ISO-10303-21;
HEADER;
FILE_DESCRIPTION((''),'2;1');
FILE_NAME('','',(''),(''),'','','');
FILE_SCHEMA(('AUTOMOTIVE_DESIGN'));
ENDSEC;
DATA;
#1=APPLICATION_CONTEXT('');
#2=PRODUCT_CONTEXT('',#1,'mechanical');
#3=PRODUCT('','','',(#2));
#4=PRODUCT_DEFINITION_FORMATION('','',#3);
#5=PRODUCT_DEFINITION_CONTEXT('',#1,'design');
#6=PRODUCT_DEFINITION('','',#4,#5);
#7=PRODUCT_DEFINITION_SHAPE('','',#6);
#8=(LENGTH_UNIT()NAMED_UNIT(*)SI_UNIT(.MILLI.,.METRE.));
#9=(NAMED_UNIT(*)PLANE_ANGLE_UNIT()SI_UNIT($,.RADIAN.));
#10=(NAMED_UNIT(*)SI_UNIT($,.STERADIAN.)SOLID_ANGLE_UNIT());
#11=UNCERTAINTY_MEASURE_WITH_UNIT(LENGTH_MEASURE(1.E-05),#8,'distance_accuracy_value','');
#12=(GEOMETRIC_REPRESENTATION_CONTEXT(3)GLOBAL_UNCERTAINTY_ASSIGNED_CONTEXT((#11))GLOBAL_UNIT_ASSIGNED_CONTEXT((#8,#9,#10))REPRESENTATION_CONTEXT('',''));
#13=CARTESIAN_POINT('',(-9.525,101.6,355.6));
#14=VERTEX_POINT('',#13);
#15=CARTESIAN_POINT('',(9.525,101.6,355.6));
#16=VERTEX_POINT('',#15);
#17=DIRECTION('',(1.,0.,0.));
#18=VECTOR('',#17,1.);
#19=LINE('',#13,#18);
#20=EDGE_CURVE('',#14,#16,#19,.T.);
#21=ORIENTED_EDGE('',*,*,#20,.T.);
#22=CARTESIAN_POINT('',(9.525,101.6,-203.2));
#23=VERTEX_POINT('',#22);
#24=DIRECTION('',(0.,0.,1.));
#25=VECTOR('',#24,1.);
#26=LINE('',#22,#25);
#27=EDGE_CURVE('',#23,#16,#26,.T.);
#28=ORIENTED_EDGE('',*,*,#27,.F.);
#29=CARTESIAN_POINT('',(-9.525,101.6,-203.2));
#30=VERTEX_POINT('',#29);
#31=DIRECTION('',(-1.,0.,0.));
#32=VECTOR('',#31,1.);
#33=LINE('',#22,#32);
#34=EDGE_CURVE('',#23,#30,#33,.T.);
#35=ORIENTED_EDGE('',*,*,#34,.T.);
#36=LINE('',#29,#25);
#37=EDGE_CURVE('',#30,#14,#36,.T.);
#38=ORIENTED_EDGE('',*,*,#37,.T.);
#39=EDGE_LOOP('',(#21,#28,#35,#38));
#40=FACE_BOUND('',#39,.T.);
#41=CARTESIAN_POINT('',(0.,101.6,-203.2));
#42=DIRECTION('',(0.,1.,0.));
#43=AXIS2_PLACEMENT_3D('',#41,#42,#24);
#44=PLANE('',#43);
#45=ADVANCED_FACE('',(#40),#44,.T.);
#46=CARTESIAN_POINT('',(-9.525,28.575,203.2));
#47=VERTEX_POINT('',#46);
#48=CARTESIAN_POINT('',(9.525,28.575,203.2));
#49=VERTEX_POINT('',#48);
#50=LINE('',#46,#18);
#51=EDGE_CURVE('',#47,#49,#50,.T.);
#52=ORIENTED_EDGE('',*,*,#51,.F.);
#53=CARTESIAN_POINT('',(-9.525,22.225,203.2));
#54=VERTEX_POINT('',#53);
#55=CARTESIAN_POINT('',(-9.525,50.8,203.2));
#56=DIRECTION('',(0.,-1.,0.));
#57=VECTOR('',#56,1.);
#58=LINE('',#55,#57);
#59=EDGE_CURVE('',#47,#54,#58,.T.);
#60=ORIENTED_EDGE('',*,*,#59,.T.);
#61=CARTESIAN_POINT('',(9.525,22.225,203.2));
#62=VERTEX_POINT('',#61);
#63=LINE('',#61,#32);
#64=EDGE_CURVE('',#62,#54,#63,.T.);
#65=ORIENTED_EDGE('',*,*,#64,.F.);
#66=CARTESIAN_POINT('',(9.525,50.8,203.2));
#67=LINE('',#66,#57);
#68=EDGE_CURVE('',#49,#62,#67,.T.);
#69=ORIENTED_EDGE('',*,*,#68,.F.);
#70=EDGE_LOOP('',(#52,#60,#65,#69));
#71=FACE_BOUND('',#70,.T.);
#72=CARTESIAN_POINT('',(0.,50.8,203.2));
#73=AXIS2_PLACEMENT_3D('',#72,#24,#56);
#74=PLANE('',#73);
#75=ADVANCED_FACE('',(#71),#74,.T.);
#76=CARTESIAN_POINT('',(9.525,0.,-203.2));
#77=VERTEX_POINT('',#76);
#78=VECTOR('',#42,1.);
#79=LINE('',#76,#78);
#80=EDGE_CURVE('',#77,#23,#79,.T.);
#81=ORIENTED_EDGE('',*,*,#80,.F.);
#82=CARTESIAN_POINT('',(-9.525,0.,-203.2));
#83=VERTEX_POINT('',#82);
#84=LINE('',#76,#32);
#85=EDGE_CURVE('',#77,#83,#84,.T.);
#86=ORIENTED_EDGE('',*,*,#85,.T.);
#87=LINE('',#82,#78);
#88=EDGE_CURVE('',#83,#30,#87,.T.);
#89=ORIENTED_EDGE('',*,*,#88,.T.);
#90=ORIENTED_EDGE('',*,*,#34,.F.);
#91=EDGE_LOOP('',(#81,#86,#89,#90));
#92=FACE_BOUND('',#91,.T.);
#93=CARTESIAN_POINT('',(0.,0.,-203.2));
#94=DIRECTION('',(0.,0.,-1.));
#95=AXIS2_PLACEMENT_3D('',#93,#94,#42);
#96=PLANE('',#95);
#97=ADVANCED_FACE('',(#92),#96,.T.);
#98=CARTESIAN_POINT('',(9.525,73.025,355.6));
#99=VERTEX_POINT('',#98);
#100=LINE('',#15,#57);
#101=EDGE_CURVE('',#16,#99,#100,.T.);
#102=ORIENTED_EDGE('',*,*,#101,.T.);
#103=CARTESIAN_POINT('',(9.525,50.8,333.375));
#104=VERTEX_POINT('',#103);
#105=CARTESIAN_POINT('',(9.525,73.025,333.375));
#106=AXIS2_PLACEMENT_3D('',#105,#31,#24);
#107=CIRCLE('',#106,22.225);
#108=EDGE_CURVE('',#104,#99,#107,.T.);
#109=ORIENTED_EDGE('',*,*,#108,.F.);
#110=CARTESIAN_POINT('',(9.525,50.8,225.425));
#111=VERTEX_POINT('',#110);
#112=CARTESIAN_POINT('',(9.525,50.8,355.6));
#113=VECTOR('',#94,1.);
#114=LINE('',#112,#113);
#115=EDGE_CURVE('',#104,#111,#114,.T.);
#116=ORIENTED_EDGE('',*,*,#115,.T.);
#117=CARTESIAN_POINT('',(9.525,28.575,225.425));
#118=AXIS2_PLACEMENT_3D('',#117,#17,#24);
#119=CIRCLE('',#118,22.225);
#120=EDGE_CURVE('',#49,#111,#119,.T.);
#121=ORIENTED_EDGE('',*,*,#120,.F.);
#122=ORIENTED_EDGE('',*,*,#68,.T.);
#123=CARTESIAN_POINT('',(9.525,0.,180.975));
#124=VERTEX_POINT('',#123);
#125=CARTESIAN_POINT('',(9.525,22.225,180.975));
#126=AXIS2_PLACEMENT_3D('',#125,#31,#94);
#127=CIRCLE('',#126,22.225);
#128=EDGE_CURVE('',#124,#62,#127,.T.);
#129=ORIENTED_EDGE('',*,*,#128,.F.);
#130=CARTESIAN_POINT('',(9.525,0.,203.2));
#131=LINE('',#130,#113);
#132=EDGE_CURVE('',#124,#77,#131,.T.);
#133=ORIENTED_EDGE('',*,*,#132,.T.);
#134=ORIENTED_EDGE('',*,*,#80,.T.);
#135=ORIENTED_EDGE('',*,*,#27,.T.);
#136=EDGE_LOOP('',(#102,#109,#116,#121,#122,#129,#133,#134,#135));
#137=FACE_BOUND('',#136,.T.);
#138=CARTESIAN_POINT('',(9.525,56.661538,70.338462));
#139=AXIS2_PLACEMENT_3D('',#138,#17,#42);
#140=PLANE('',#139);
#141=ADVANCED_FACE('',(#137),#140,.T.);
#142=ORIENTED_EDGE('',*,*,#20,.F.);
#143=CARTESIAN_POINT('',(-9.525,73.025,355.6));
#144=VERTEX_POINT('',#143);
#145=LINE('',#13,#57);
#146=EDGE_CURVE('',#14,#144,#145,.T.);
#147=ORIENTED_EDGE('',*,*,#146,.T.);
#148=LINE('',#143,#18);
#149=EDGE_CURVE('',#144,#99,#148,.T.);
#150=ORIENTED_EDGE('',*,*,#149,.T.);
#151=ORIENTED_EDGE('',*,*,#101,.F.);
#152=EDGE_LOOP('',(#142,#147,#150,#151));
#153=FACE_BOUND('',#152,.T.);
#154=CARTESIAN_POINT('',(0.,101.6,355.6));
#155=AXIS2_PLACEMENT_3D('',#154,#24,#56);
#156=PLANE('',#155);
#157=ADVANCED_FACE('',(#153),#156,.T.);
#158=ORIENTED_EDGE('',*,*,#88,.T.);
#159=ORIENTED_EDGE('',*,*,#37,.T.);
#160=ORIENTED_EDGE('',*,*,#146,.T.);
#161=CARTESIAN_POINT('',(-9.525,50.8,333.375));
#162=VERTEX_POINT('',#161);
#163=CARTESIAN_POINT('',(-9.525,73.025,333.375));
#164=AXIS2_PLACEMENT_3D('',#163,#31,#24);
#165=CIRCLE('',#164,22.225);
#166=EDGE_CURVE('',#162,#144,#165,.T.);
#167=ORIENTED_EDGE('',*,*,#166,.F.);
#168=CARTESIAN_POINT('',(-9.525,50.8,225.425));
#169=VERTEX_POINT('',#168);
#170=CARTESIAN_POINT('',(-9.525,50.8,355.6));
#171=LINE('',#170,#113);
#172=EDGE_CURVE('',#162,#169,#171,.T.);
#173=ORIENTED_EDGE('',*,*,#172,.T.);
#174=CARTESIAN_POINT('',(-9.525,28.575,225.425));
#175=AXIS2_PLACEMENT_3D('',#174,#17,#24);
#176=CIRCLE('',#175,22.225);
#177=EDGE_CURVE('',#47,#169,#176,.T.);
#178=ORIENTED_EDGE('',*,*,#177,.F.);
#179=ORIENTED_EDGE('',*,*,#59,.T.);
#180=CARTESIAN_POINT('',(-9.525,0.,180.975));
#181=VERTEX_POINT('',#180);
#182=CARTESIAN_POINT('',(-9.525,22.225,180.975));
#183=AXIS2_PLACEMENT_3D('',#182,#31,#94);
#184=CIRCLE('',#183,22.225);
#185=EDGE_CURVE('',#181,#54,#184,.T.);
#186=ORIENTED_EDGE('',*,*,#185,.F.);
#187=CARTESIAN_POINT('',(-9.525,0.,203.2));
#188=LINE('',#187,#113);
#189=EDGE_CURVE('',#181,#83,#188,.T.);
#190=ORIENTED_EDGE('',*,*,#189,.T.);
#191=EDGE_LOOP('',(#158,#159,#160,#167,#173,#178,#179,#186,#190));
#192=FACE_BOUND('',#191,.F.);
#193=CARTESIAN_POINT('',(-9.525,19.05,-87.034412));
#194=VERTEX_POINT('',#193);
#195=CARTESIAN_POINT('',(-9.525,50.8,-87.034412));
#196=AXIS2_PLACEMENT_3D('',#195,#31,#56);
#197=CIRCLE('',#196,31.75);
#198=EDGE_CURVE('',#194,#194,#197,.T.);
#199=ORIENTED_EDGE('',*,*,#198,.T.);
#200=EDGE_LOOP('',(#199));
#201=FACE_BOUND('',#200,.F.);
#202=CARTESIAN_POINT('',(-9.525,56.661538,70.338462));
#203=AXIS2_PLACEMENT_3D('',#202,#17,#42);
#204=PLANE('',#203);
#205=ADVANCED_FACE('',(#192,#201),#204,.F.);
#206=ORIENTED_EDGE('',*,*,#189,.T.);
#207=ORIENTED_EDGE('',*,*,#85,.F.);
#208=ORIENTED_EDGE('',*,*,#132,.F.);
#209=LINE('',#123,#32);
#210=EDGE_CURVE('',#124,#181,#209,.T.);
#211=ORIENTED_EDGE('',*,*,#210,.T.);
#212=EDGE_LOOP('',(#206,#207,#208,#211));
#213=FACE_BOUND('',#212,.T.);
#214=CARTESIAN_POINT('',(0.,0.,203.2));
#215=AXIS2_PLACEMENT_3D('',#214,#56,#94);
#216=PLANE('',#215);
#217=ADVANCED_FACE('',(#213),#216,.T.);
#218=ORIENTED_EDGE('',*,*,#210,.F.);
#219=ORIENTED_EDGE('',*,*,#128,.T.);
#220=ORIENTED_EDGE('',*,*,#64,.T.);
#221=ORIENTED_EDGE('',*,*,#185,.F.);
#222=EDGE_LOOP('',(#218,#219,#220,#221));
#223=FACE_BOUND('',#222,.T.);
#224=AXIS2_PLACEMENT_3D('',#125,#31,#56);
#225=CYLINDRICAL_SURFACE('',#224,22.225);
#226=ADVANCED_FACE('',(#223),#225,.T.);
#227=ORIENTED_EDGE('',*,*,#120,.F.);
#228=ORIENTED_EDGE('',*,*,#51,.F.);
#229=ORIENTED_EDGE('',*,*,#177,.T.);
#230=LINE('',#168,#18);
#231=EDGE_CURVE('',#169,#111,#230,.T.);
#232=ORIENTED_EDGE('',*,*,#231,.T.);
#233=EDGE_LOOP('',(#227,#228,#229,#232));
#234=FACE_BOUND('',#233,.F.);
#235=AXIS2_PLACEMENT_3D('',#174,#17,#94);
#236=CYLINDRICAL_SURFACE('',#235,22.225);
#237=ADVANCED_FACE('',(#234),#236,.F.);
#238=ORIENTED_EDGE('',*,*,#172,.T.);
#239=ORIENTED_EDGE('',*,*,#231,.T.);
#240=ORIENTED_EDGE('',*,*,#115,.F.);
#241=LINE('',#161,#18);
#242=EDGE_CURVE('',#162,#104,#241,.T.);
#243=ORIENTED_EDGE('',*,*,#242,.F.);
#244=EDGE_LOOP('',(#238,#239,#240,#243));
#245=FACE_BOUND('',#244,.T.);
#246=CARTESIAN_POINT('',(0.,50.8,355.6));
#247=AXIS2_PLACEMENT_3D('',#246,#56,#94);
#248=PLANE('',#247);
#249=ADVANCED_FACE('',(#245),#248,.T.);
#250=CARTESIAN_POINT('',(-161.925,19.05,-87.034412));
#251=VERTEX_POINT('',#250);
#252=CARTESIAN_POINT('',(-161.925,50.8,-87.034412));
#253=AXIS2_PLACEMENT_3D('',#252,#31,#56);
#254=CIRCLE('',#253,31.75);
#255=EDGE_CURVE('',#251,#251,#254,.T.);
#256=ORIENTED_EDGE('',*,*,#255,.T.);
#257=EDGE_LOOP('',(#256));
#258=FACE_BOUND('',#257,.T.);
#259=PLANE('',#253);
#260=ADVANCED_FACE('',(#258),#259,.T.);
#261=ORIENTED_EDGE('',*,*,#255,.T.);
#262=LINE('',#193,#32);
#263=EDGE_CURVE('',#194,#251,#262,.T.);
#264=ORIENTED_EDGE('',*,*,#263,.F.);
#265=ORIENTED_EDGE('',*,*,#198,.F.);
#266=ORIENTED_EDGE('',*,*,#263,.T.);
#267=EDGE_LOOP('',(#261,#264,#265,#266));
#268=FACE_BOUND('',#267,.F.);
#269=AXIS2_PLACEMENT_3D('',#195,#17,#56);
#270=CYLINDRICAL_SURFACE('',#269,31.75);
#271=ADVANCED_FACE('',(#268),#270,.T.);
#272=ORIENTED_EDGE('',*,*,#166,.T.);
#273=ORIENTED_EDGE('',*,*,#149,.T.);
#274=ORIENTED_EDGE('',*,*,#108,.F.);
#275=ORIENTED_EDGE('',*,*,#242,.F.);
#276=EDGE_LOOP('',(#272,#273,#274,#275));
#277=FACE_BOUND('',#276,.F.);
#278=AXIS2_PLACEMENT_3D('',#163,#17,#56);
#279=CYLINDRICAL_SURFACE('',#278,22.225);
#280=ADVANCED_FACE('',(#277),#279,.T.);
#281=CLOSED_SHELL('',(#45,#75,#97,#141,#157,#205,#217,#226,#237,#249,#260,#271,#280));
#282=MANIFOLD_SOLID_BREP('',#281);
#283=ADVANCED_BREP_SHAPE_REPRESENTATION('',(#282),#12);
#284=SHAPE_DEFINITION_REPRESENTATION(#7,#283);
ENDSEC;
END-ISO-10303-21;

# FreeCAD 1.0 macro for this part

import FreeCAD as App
import Part
import Sketcher
from FreeCAD import Vector
Q = App.Units.Quantity


def edges_at(feature, points):
    """Names of the edges that pass closest to the given points."""
    edges = feature.Shape.Edges
    near = lambda p: min(range(len(edges)), key=lambda i: edges[i].distToShape(Part.Vertex(*p))[0])
    return sorted({f"Edge{near(p) + 1}" for p in points})

doc = App.newDocument("Part")
params = doc.addObject("Spreadsheet::Sheet", "Params")
for row, (alias, value) in enumerate([
    ("sketch1_width", "2 in"),
    ("sketch1_height", "22 in"),
    ("sketch1_height2", "6 in"),
    ("pad1_length", "0.75 in"),
    ("fillet_radius", "0.875 in"),
    ("sketch2_diameter", "2.5 in"),
    ("pad2_length", "6 in"),
], start=1):
    params.set(f"A{row}", alias)
    params.set(f"B{row}", "=" + value)
    params.setAlias(f"B{row}", alias)

body = doc.addObject("PartDesign::Body", "Body")

# Sketch on YZ plane
sketch1 = body.newObject("Sketcher::SketchObject", "Sketch")
sketch1.AttachmentSupport = (doc.getObject("YZ_Plane"), [""])
sketch1.MapMode = "FlatFace"
sketch1.addGeometry(Part.LineSegment(Vector(102, -203, 0), Vector(102, 356, 0)), False)
sketch1.addGeometry(Part.LineSegment(Vector(102, 356, 0), Vector(51, 356, 0)), False)
sketch1.addGeometry(Part.LineSegment(Vector(51, 356, 0), Vector(51, 203, 0)), False)
sketch1.addGeometry(Part.LineSegment(Vector(51, 203, 0), Vector(0, 203, 0)), False)
sketch1.addGeometry(Part.LineSegment(Vector(0, 203, 0), Vector(0, -203, 0)), False)
sketch1.addGeometry(Part.LineSegment(Vector(0, -203, 0), Vector(102, -203, 0)), False)
sketch1.addConstraint(Sketcher.Constraint("Coincident", 0, 2, 1, 1))
sketch1.addConstraint(Sketcher.Constraint("Coincident", 1, 2, 2, 1))
sketch1.addConstraint(Sketcher.Constraint("Coincident", 2, 2, 3, 1))
sketch1.addConstraint(Sketcher.Constraint("Coincident", 3, 2, 4, 1))
sketch1.addConstraint(Sketcher.Constraint("Coincident", 4, 2, 5, 1))
sketch1.addConstraint(Sketcher.Constraint("Coincident", 5, 2, 0, 1))
sketch1.addConstraint(Sketcher.Constraint("Vertical", 0))
sketch1.addConstraint(Sketcher.Constraint("Horizontal", 1))
sketch1.addConstraint(Sketcher.Constraint("Vertical", 2))
sketch1.addConstraint(Sketcher.Constraint("Horizontal", 3))
sketch1.addConstraint(Sketcher.Constraint("Vertical", 4))
sketch1.addConstraint(Sketcher.Constraint("Horizontal", 5))
sketch1.addConstraint(Sketcher.Constraint("Symmetric", 3, 2, 4, 2, -1, 1))
sketch1.addConstraint(Sketcher.Constraint("Equal", 1, 3))
sketch1.addConstraint(Sketcher.Constraint("DistanceX", 1, 2, 1, 1, Q("2 in")))
sketch1.addConstraint(Sketcher.Constraint("DistanceY", 0, 1, 0, 2, Q("22 in")))
sketch1.addConstraint(Sketcher.Constraint("DistanceY", 2, 2, 2, 1, Q("6 in")))
sketch1.setExpression("Constraints[14]", "Params.sketch1_width")
sketch1.setExpression("Constraints[15]", "Params.sketch1_height")
sketch1.setExpression("Constraints[16]", "Params.sketch1_height2")
pad1 = body.newObject("PartDesign::Pad", "Pad")
pad1.Profile = sketch1
pad1.setExpression("Length", "Params.pad1_length")
pad1.Midplane = True
doc.recompute()

fillet = body.newObject("PartDesign::Fillet", "Fillet")
fillet.Base = (pad1, edges_at(pad1, [(0, 50.8, 355.6), (0, 50.8, 203.2), (0, 0, 203.2)]))
fillet.setExpression("Radius", "Params.fillet_radius")

# Sketch on YZ plane
sketch2 = body.newObject("Sketcher::SketchObject", "Sketch001")
sketch2.AttachmentSupport = (doc.getObject("YZ_Plane"), [""])
sketch2.MapMode = "FlatFace"
sketch2.AttachmentOffset = App.Placement(Vector(0, 0, -0.375 * 25.4), App.Rotation())
sketch2.addGeometry(Part.Circle(Vector(51, -87, 0), Vector(0, 0, 1), 32), False)
sketch2.addConstraint(Sketcher.Constraint("Diameter", 0, Q("2.5 in")))
sketch2.addConstraint(Sketcher.Constraint("DistanceX", -1, 1, 0, 3, Q("2 in")))
sketch2.addConstraint(Sketcher.Constraint("DistanceY", 0, 3, -1, 1, 87.034412))
sketch2.setExpression("Constraints[0]", "Params.sketch2_diameter")
pad2 = body.newObject("PartDesign::Pad", "Pad001")
pad2.Profile = sketch2
pad2.setExpression("Length", "Params.pad2_length")
pad2.Reversed = True

doc.recompute()
